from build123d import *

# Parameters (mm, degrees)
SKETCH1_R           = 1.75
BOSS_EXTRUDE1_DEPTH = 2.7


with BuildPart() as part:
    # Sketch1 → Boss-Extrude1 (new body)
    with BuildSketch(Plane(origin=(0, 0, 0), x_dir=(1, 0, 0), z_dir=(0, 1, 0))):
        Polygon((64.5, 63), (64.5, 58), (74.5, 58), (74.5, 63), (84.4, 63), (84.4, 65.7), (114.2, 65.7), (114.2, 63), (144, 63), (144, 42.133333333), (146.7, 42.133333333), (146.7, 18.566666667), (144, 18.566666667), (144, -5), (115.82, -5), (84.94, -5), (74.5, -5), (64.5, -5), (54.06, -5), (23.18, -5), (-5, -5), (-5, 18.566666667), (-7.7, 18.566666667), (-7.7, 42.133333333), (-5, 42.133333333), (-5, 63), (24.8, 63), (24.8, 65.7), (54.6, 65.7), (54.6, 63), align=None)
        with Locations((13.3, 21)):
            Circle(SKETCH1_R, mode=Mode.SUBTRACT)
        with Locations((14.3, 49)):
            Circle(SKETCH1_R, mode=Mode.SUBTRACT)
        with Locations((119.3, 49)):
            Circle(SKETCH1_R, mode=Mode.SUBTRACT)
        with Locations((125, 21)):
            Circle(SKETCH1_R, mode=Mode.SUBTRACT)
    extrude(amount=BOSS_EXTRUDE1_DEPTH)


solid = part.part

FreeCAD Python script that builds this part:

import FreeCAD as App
import Part
import Sketcher

V = App.Vector
Q = App.Units.Quantity


def add_polygon(sketch, points):
    """Adds a closed chain of lines whose ends are joined by coincident constraints."""
    first, n = sketch.GeometryCount, len(points)
    for a, b in zip(points, points[1:] + points[:1]):
        sketch.addGeometry(Part.LineSegment(App.Vector(*a, 0), App.Vector(*b, 0)), False)
    for i in range(n):
        sketch.addConstraint(Sketcher.Constraint("Coincident", first + i, 2, first + (i + 1) % n, 1))

doc = App.newDocument("Part")
body = doc.addObject("PartDesign::Body", "Body")

# Sketch on XZ plane
sketch1 = body.newObject("Sketcher::SketchObject", "Sketch")
sketch1.AttachmentSupport = (doc.getObject("XZ_Plane"), [""])
sketch1.MapMode = "FlatFace"
add_polygon(sketch1, [(64.5, -58), (64.5, -63), (54.6, -63), (54.6, -65.7), (24.8, -65.7), (24.8, -63), (-5, -63), (-5, -42.1), (-7.7, -42.1), (-7.7, -18.6), (-5, -18.6), (-5, 5), (144, 5), (144, -18.6), (146.7, -18.6), (146.7, -42.1), (144, -42.1), (144, -63), (114.2, -63), (114.2, -65.7), (84.4, -65.7), (84.4, -63), (74.5, -63), (74.5, -58)])  # lines 0-23
sketch1.addGeometry(Part.Circle(V(125, -21, 0), V(0, 0, 1), 1.8), False)  # 24
sketch1.addGeometry(Part.Circle(V(13.3, -21, 0), V(0, 0, 1), 1.8), False)  # 25
sketch1.addGeometry(Part.Circle(V(119.3, -49, 0), V(0, 0, 1), 1.8), False)  # 26
sketch1.addGeometry(Part.Circle(V(14.3, -49, 0), V(0, 0, 1), 1.8), False)  # 27
sketch1.addConstraint(Sketcher.Constraint("Vertical", 0))
sketch1.addConstraint(Sketcher.Constraint("Horizontal", 1))
sketch1.addConstraint(Sketcher.Constraint("Vertical", 2))
sketch1.addConstraint(Sketcher.Constraint("Horizontal", 3))
sketch1.addConstraint(Sketcher.Constraint("Vertical", 4))
sketch1.addConstraint(Sketcher.Constraint("Horizontal", 5))
sketch1.addConstraint(Sketcher.Constraint("Vertical", 6))
sketch1.addConstraint(Sketcher.Constraint("Horizontal", 7))
sketch1.addConstraint(Sketcher.Constraint("Vertical", 8))
sketch1.addConstraint(Sketcher.Constraint("Horizontal", 9))
sketch1.addConstraint(Sketcher.Constraint("Vertical", 10))
sketch1.addConstraint(Sketcher.Constraint("Horizontal", 11))
sketch1.addConstraint(Sketcher.Constraint("Vertical", 12))
sketch1.addConstraint(Sketcher.Constraint("Horizontal", 13))
sketch1.addConstraint(Sketcher.Constraint("Vertical", 14))
sketch1.addConstraint(Sketcher.Constraint("Horizontal", 15))
sketch1.addConstraint(Sketcher.Constraint("Vertical", 16))
sketch1.addConstraint(Sketcher.Constraint("Horizontal", 17))
sketch1.addConstraint(Sketcher.Constraint("Vertical", 18))
sketch1.addConstraint(Sketcher.Constraint("Horizontal", 19))
sketch1.addConstraint(Sketcher.Constraint("Vertical", 20))
sketch1.addConstraint(Sketcher.Constraint("Horizontal", 21))
sketch1.addConstraint(Sketcher.Constraint("Vertical", 22))
sketch1.addConstraint(Sketcher.Constraint("Horizontal", 23))
sketch1.addConstraint(Sketcher.Constraint("Equal", 24, 25))
sketch1.addConstraint(Sketcher.Constraint("Equal", 25, 26))
sketch1.addConstraint(Sketcher.Constraint("Equal", 26, 27))
sketch1.addConstraint(Sketcher.Constraint("Horizontal", 24, 3, 25, 3))
sketch1.addConstraint(Sketcher.Constraint("Horizontal", 26, 3, 27, 3))
sketch1.addConstraint(Sketcher.Constraint("Horizontal", 1, 2, 4, 2))
sketch1.addConstraint(Sketcher.Constraint("Horizontal", 9, 2, 12, 2))
sketch1.addConstraint(Sketcher.Constraint("Horizontal", 7, 2, 14, 2))
sketch1.addConstraint(Sketcher.Constraint("Horizontal", 5, 2, 16, 2))
sketch1.addConstraint(Sketcher.Constraint("Horizontal", 3, 2, 18, 2))
sketch1.addConstraint(Sketcher.Constraint("Horizontal", 17, 2, 20, 2))
sketch1.addConstraint(Sketcher.Constraint("Vertical", 6, 2, 9, 2))
sketch1.addConstraint(Sketcher.Constraint("Vertical", 12, 2, 15, 2))
sketch1.addConstraint(Sketcher.Constraint("Equal", 3, 5))
sketch1.addConstraint(Sketcher.Constraint("Equal", 9, 13))
sketch1.addConstraint(Sketcher.Constraint("Equal", 5, 17))
sketch1.addConstraint(Sketcher.Constraint("Equal", 17, 19))
sketch1.addConstraint(Sketcher.Constraint("Equal", 1, 21))
sketch1.addConstraint(Sketcher.Constraint("Equal", 15, 2))
sketch1.addConstraint(Sketcher.Constraint("Equal", 8, 10))
sketch1.addConstraint(Sketcher.Constraint("Diameter", 24, Q("3.5 mm")))
sketch1.addConstraint(Sketcher.Constraint("DistanceX", 11, 1, 11, 2, Q("149 mm")))
sketch1.addConstraint(Sketcher.Constraint("DistanceX", 23, 2, 23, 1, Q("10 mm")))
sketch1.addConstraint(Sketcher.Constraint("DistanceY", 0, 2, 0, 1, Q("5 mm")))
sketch1.addConstraint(Sketcher.Constraint("DistanceX", 1, 2, 1, 1, Q("9.9 mm")))
sketch1.addConstraint(Sketcher.Constraint("DistanceX", 7, 2, 7, 1, Q("2.7 mm")))
sketch1.addConstraint(Sketcher.Constraint("DistanceX", -1, 1, 24, 3, Q("125 mm")))
sketch1.addConstraint(Sketcher.Constraint("DistanceY", 24, 3, -1, 1, Q("21 mm")))
sketch1.addConstraint(Sketcher.Constraint("DistanceY", 26, 3, -1, 1, Q("49 mm")))
sketch1.addConstraint(Sketcher.Constraint("DistanceY", 0, 2, -1, 1, Q("63 mm")))
sketch1.addConstraint(Sketcher.Constraint("DistanceX", 5, 2, -1, 1, Q("5 mm")))
sketch1.addConstraint(Sketcher.Constraint("DistanceY", -1, 1, 10, 2, Q("5 mm")))
sketch1.addConstraint(Sketcher.Constraint("DistanceX", 25, 3, 26, 3, Q("106 mm")))
sketch1.addConstraint(Sketcher.Constraint("DistanceX", 25, 3, 27, 3, Q("1 mm")))
sketch1.addConstraint(Sketcher.Constraint("DistanceX", 7, 2, 27, 3, Q("22 mm")))
sketch1.addConstraint(Sketcher.Constraint("DistanceY", 6, 1, 6, 2, Q("20.866667 mm")))
pad1 = body.newObject("PartDesign::Pad", "Pad")
pad1.Profile = sketch1
pad1.Length = 2.7
pad1.Reversed = True

doc.recompute()
